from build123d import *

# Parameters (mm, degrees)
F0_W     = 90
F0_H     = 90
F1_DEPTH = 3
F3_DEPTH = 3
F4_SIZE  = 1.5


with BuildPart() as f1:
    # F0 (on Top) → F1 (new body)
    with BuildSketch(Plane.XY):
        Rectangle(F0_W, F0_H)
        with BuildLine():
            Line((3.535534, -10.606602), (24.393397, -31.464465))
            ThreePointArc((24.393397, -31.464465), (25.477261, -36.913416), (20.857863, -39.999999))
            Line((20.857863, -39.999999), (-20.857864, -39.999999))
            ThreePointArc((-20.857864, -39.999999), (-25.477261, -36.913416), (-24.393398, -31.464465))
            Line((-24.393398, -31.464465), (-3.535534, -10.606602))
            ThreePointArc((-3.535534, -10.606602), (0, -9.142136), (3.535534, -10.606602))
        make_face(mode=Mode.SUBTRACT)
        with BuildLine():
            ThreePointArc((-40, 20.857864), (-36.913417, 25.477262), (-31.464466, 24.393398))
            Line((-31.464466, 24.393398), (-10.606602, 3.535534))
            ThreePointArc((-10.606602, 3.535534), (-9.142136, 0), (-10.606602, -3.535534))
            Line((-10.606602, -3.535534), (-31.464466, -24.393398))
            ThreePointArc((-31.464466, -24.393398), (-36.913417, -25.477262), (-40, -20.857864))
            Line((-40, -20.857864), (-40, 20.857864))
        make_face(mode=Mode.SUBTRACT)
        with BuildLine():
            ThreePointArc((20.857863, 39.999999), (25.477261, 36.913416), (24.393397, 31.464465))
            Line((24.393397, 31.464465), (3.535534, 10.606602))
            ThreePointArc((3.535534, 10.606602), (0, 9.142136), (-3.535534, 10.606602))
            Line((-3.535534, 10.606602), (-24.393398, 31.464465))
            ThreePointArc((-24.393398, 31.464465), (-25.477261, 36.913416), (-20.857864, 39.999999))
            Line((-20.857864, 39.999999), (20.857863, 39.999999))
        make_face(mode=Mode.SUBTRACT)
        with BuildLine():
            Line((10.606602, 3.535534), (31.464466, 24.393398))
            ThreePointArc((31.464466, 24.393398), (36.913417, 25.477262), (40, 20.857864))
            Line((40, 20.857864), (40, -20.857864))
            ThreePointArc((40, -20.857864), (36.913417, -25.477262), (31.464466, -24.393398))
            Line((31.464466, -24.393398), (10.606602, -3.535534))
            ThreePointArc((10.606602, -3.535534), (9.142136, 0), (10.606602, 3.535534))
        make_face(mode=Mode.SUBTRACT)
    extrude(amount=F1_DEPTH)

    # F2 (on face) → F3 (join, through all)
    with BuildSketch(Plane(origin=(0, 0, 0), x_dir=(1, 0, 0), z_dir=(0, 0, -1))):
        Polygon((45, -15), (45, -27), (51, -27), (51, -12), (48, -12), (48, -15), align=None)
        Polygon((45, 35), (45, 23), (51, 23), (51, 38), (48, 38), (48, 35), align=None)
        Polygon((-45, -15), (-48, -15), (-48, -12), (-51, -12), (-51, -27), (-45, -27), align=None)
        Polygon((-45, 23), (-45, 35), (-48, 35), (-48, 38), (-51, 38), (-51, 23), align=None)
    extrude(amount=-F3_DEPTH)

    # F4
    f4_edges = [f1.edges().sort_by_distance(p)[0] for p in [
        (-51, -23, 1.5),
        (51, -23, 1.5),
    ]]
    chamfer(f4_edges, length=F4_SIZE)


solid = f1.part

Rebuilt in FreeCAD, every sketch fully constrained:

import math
import FreeCAD as App
import Part
import Sketcher
Q = App.Units.Quantity


def edges_at(feature, points):
    """Names of the edges that pass closest to the given points."""
    edges = feature.Shape.Edges
    near = lambda p: min(range(len(edges)), key=lambda i: edges[i].distToShape(Part.Vertex(*p))[0])
    return sorted({f"Edge{near(p) + 1}" for p in points})

doc = App.newDocument("Part")
params = doc.addObject("Spreadsheet::Sheet", "Params")
for row, (alias, value) in enumerate([
    ("sketch1_radius", "5 mm"),
    ("sketch1_width", "90 mm"),
    ("pad1_length", "3 mm"),
    ("sketch2_width", "6 mm"),
    ("sketch2_height", "12 mm"),
    ("chamfer_size", "1.5 mm"),
], start=1):
    params.set(f"A{row}", alias)
    params.set(f"B{row}", "=" + value)
    params.setAlias(f"B{row}", alias)

body = doc.addObject("PartDesign::Body", "Body")

# Sketch on XY plane
sketch1 = body.newObject("Sketcher::SketchObject", "Sketch")
sketch1.AttachmentSupport = (doc.getObject("XY_Plane"), [""])
sketch1.MapMode = "FlatFace"
sketch1.addGeometry(Part.LineSegment(App.Vector(-45, 45, 0), App.Vector(-45, -45, 0)), False)
sketch1.addGeometry(Part.LineSegment(App.Vector(-45, -45, 0), App.Vector(45, -45, 0)), False)
sketch1.addGeometry(Part.LineSegment(App.Vector(45, -45, 0), App.Vector(45, 45, 0)), False)
sketch1.addGeometry(Part.LineSegment(App.Vector(45, 45, 0), App.Vector(-45, 45, 0)), False)
sketch1.addGeometry(Part.ArcOfCircle(Part.Circle(App.Vector(0, -14.1, 0), App.Vector(0, 0, 1), 5), math.radians(45), math.radians(135)), False)
sketch1.addGeometry(Part.LineSegment(App.Vector(3.5, -10.6, 0), App.Vector(24.4, -31.5, 0)), False)
sketch1.addGeometry(Part.ArcOfCircle(Part.Circle(App.Vector(20.9, -35, 0), App.Vector(0, 0, 1), 5), math.radians(-90), math.radians(45)), False)
sketch1.addGeometry(Part.LineSegment(App.Vector(20.9, -40, 0), App.Vector(-20.9, -40, 0)), False)
sketch1.addGeometry(Part.ArcOfCircle(Part.Circle(App.Vector(-20.9, -35, 0), App.Vector(0, 0, 1), 5), math.radians(135), math.radians(270)), False)
sketch1.addGeometry(Part.LineSegment(App.Vector(-24.4, -31.5, 0), App.Vector(-3.5, -10.6, 0)), False)
sketch1.addGeometry(Part.LineSegment(App.Vector(-40, -20.9, 0), App.Vector(-40, 20.9, 0)), False)
sketch1.addGeometry(Part.ArcOfCircle(Part.Circle(App.Vector(-35, 20.9, 0), App.Vector(0, 0, 1), 5), math.radians(45), math.radians(180)), False)
sketch1.addGeometry(Part.LineSegment(App.Vector(-31.5, 24.4, 0), App.Vector(-10.6, 3.5, 0)), False)
sketch1.addGeometry(Part.ArcOfCircle(Part.Circle(App.Vector(-14.1, 0, 0), App.Vector(0, 0, 1), 5), math.radians(-45), math.radians(45)), False)
sketch1.addGeometry(Part.LineSegment(App.Vector(-10.6, -3.5, 0), App.Vector(-31.5, -24.4, 0)), False)
sketch1.addGeometry(Part.ArcOfCircle(Part.Circle(App.Vector(-35, -20.9, 0), App.Vector(0, 0, 1), 5), math.radians(180), math.radians(315)), False)
sketch1.addGeometry(Part.LineSegment(App.Vector(-20.9, 40, 0), App.Vector(20.9, 40, 0)), False)
sketch1.addGeometry(Part.ArcOfCircle(Part.Circle(App.Vector(20.9, 35, 0), App.Vector(0, 0, 1), 5), math.radians(-45), math.radians(90)), False)
sketch1.addGeometry(Part.LineSegment(App.Vector(24.4, 31.5, 0), App.Vector(3.5, 10.6, 0)), False)
sketch1.addGeometry(Part.ArcOfCircle(Part.Circle(App.Vector(0, 14.1, 0), App.Vector(0, 0, 1), 5), math.radians(-135), math.radians(-45)), False)
sketch1.addGeometry(Part.LineSegment(App.Vector(-3.5, 10.6, 0), App.Vector(-24.4, 31.5, 0)), False)
sketch1.addGeometry(Part.ArcOfCircle(Part.Circle(App.Vector(-20.9, 35, 0), App.Vector(0, 0, 1), 5), math.radians(90), math.radians(225)), False)
sketch1.addGeometry(Part.ArcOfCircle(Part.Circle(App.Vector(14.1, 0, 0), App.Vector(0, 0, 1), 5), math.radians(135), math.radians(225)), False)
sketch1.addGeometry(Part.LineSegment(App.Vector(10.6, 3.5, 0), App.Vector(31.5, 24.4, 0)), False)
sketch1.addGeometry(Part.ArcOfCircle(Part.Circle(App.Vector(35, 20.9, 0), App.Vector(0, 0, 1), 5), math.radians(0), math.radians(135)), False)
sketch1.addGeometry(Part.LineSegment(App.Vector(40, 20.9, 0), App.Vector(40, -20.9, 0)), False)
sketch1.addGeometry(Part.ArcOfCircle(Part.Circle(App.Vector(35, -20.9, 0), App.Vector(0, 0, 1), 5), math.radians(-135), math.radians(0)), False)
sketch1.addGeometry(Part.LineSegment(App.Vector(31.5, -24.4, 0), App.Vector(10.6, -3.5, 0)), False)
sketch1.addConstraint(Sketcher.Constraint("Coincident", 0, 2, 1, 1))
sketch1.addConstraint(Sketcher.Constraint("Coincident", 1, 2, 2, 1))
sketch1.addConstraint(Sketcher.Constraint("Coincident", 2, 2, 3, 1))
sketch1.addConstraint(Sketcher.Constraint("Coincident", 3, 2, 0, 1))
sketch1.addConstraint(Sketcher.Constraint("Tangent", 4, 1, 5, 1))
sketch1.addConstraint(Sketcher.Constraint("Tangent", 5, 2, 6, 2))
sketch1.addConstraint(Sketcher.Constraint("Tangent", 6, 1, 7, 1))
sketch1.addConstraint(Sketcher.Constraint("Tangent", 7, 2, 8, 2))
sketch1.addConstraint(Sketcher.Constraint("Tangent", 8, 1, 9, 1))
sketch1.addConstraint(Sketcher.Constraint("Tangent", 9, 2, 4, 2))
sketch1.addConstraint(Sketcher.Constraint("Tangent", 10, 2, 11, 2))
sketch1.addConstraint(Sketcher.Constraint("Tangent", 11, 1, 12, 1))
sketch1.addConstraint(Sketcher.Constraint("Tangent", 12, 2, 13, 2))
sketch1.addConstraint(Sketcher.Constraint("Tangent", 13, 1, 14, 1))
sketch1.addConstraint(Sketcher.Constraint("Tangent", 14, 2, 15, 2))
sketch1.addConstraint(Sketcher.Constraint("Tangent", 15, 1, 10, 1))
sketch1.addConstraint(Sketcher.Constraint("Tangent", 16, 2, 17, 2))
sketch1.addConstraint(Sketcher.Constraint("Tangent", 17, 1, 18, 1))
sketch1.addConstraint(Sketcher.Constraint("Tangent", 18, 2, 19, 2))
sketch1.addConstraint(Sketcher.Constraint("Tangent", 19, 1, 20, 1))
sketch1.addConstraint(Sketcher.Constraint("Tangent", 20, 2, 21, 2))
sketch1.addConstraint(Sketcher.Constraint("Tangent", 21, 1, 16, 1))
sketch1.addConstraint(Sketcher.Constraint("Tangent", 22, 1, 23, 1))
sketch1.addConstraint(Sketcher.Constraint("Tangent", 23, 2, 24, 2))
sketch1.addConstraint(Sketcher.Constraint("Tangent", 24, 1, 25, 1))
sketch1.addConstraint(Sketcher.Constraint("Tangent", 25, 2, 26, 2))
sketch1.addConstraint(Sketcher.Constraint("Tangent", 26, 1, 27, 1))
sketch1.addConstraint(Sketcher.Constraint("Tangent", 27, 2, 22, 2))
sketch1.addConstraint(Sketcher.Constraint("Vertical", 0))
sketch1.addConstraint(Sketcher.Constraint("Horizontal", 1))
sketch1.addConstraint(Sketcher.Constraint("Vertical", 2))
sketch1.addConstraint(Sketcher.Constraint("Horizontal", 3))
sketch1.addConstraint(Sketcher.Constraint("Horizontal", 7))
sketch1.addConstraint(Sketcher.Constraint("Vertical", 10))
sketch1.addConstraint(Sketcher.Constraint("Horizontal", 16))
sketch1.addConstraint(Sketcher.Constraint("Vertical", 25))
sketch1.addConstraint(Sketcher.Constraint("Equal", 4, 6))
sketch1.addConstraint(Sketcher.Constraint("Equal", 6, 8))
sketch1.addConstraint(Sketcher.Constraint("Equal", 8, 11))
sketch1.addConstraint(Sketcher.Constraint("Equal", 11, 13))
sketch1.addConstraint(Sketcher.Constraint("Equal", 13, 15))
sketch1.addConstraint(Sketcher.Constraint("Equal", 15, 17))
sketch1.addConstraint(Sketcher.Constraint("Equal", 17, 19))
sketch1.addConstraint(Sketcher.Constraint("Equal", 19, 21))
sketch1.addConstraint(Sketcher.Constraint("Equal", 21, 22))
sketch1.addConstraint(Sketcher.Constraint("Equal", 22, 24))
sketch1.addConstraint(Sketcher.Constraint("Equal", 24, 26))
sketch1.addConstraint(Sketcher.Constraint("Symmetric", 8, 3, 17, 3, -1, 1))
sketch1.addConstraint(Sketcher.Constraint("Symmetric", 4, 3, 19, 3, -1, 1))
sketch1.addConstraint(Sketcher.Constraint("Symmetric", 13, 3, 22, 3, -1, 1))
sketch1.addConstraint(Sketcher.Constraint("Symmetric", 15, 3, 24, 3, -1, 1))
sketch1.addConstraint(Sketcher.Constraint("Symmetric", 0, 2, 2, 2, -1, 1))
sketch1.addConstraint(Sketcher.Constraint("Symmetric", 5, 2, 8, 1, -2))
sketch1.addConstraint(Sketcher.Constraint("Symmetric", 12, 2, 22, 1, -2))
sketch1.addConstraint(Sketcher.Constraint("Perpendicular", 5, 9))
sketch1.addConstraint(Sketcher.Constraint("Perpendicular", 9, 12))
sketch1.addConstraint(Sketcher.Constraint("Perpendicular", 18, 20))
sketch1.addConstraint(Sketcher.Constraint("Perpendicular", 23, 27))
sketch1.addConstraint(Sketcher.Constraint("Equal", 3, 0))
sketch1.addConstraint(Sketcher.Constraint("Equal", 16, 10))
sketch1.addConstraint(Sketcher.Constraint("Radius", 4, Q("5 mm")))
sketch1.addConstraint(Sketcher.Constraint("DistanceX", 1, 1, 1, 2, Q("90 mm")))
sketch1.addConstraint(Sketcher.Constraint("DistanceY", 6, 3, -1, 1, Q("34.999999 mm")))
sketch1.addConstraint(Sketcher.Constraint("DistanceX", 11, 3, -1, 1, Q("35 mm")))
sketch1.addConstraint(Sketcher.Constraint("DistanceX", 8, 1, -1, 1, Q("24.393398 mm")))
sketch1.setExpression("Constraints[60]", "Params.sketch1_radius")
sketch1.setExpression("Constraints[61]", "Params.sketch1_width")
pad1 = body.newObject("PartDesign::Pad", "Pad")
pad1.Profile = sketch1
pad1.setExpression("Length", "Params.pad1_length")

# Sketch on XY plane
sketch2 = body.newObject("Sketcher::SketchObject", "Sketch001")
sketch2.AttachmentSupport = (doc.getObject("XY_Plane"), [""])
sketch2.MapMode = "FlatFace"
sketch2.addGeometry(Part.LineSegment(App.Vector(45, 15, 0), App.Vector(45, 27, 0)), False)
sketch2.addGeometry(Part.LineSegment(App.Vector(45, 27, 0), App.Vector(51, 27, 0)), False)
sketch2.addGeometry(Part.LineSegment(App.Vector(51, 27, 0), App.Vector(51, 12, 0)), False)
sketch2.addGeometry(Part.LineSegment(App.Vector(51, 12, 0), App.Vector(48, 12, 0)), False)
sketch2.addGeometry(Part.LineSegment(App.Vector(48, 12, 0), App.Vector(48, 15, 0)), False)
sketch2.addGeometry(Part.LineSegment(App.Vector(48, 15, 0), App.Vector(45, 15, 0)), False)
sketch2.addGeometry(Part.LineSegment(App.Vector(45, -35, 0), App.Vector(45, -23, 0)), False)
sketch2.addGeometry(Part.LineSegment(App.Vector(45, -23, 0), App.Vector(51, -23, 0)), False)
sketch2.addGeometry(Part.LineSegment(App.Vector(51, -23, 0), App.Vector(51, -38, 0)), False)
sketch2.addGeometry(Part.LineSegment(App.Vector(51, -38, 0), App.Vector(48, -38, 0)), False)
sketch2.addGeometry(Part.LineSegment(App.Vector(48, -38, 0), App.Vector(48, -35, 0)), False)
sketch2.addGeometry(Part.LineSegment(App.Vector(48, -35, 0), App.Vector(45, -35, 0)), False)
sketch2.addGeometry(Part.LineSegment(App.Vector(-45, 15, 0), App.Vector(-48, 15, 0)), False)
sketch2.addGeometry(Part.LineSegment(App.Vector(-48, 15, 0), App.Vector(-48, 12, 0)), False)
sketch2.addGeometry(Part.LineSegment(App.Vector(-48, 12, 0), App.Vector(-51, 12, 0)), False)
sketch2.addGeometry(Part.LineSegment(App.Vector(-51, 12, 0), App.Vector(-51, 27, 0)), False)
sketch2.addGeometry(Part.LineSegment(App.Vector(-51, 27, 0), App.Vector(-45, 27, 0)), False)
sketch2.addGeometry(Part.LineSegment(App.Vector(-45, 27, 0), App.Vector(-45, 15, 0)), False)
sketch2.addGeometry(Part.LineSegment(App.Vector(-45, -23, 0), App.Vector(-45, -35, 0)), False)
sketch2.addGeometry(Part.LineSegment(App.Vector(-45, -35, 0), App.Vector(-48, -35, 0)), False)
sketch2.addGeometry(Part.LineSegment(App.Vector(-48, -35, 0), App.Vector(-48, -38, 0)), False)
sketch2.addGeometry(Part.LineSegment(App.Vector(-48, -38, 0), App.Vector(-51, -38, 0)), False)
sketch2.addGeometry(Part.LineSegment(App.Vector(-51, -38, 0), App.Vector(-51, -23, 0)), False)
sketch2.addGeometry(Part.LineSegment(App.Vector(-51, -23, 0), App.Vector(-45, -23, 0)), False)
sketch2.addConstraint(Sketcher.Constraint("Coincident", 0, 2, 1, 1))
sketch2.addConstraint(Sketcher.Constraint("Coincident", 1, 2, 2, 1))
sketch2.addConstraint(Sketcher.Constraint("Coincident", 2, 2, 3, 1))
sketch2.addConstraint(Sketcher.Constraint("Coincident", 3, 2, 4, 1))
sketch2.addConstraint(Sketcher.Constraint("Coincident", 4, 2, 5, 1))
sketch2.addConstraint(Sketcher.Constraint("Coincident", 5, 2, 0, 1))
sketch2.addConstraint(Sketcher.Constraint("Coincident", 6, 2, 7, 1))
sketch2.addConstraint(Sketcher.Constraint("Coincident", 7, 2, 8, 1))
sketch2.addConstraint(Sketcher.Constraint("Coincident", 8, 2, 9, 1))
sketch2.addConstraint(Sketcher.Constraint("Coincident", 9, 2, 10, 1))
sketch2.addConstraint(Sketcher.Constraint("Coincident", 10, 2, 11, 1))
sketch2.addConstraint(Sketcher.Constraint("Coincident", 11, 2, 6, 1))
sketch2.addConstraint(Sketcher.Constraint("Coincident", 12, 2, 13, 1))
sketch2.addConstraint(Sketcher.Constraint("Coincident", 13, 2, 14, 1))
sketch2.addConstraint(Sketcher.Constraint("Coincident", 14, 2, 15, 1))
sketch2.addConstraint(Sketcher.Constraint("Coincident", 15, 2, 16, 1))
sketch2.addConstraint(Sketcher.Constraint("Coincident", 16, 2, 17, 1))
sketch2.addConstraint(Sketcher.Constraint("Coincident", 17, 2, 12, 1))
sketch2.addConstraint(Sketcher.Constraint("Coincident", 18, 2, 19, 1))
sketch2.addConstraint(Sketcher.Constraint("Coincident", 19, 2, 20, 1))
sketch2.addConstraint(Sketcher.Constraint("Coincident", 20, 2, 21, 1))
sketch2.addConstraint(Sketcher.Constraint("Coincident", 21, 2, 22, 1))
sketch2.addConstraint(Sketcher.Constraint("Coincident", 22, 2, 23, 1))
sketch2.addConstraint(Sketcher.Constraint("Coincident", 23, 2, 18, 1))
sketch2.addConstraint(Sketcher.Constraint("Vertical", 0))
sketch2.addConstraint(Sketcher.Constraint("Horizontal", 1))
sketch2.addConstraint(Sketcher.Constraint("Vertical", 2))
sketch2.addConstraint(Sketcher.Constraint("Horizontal", 3))
sketch2.addConstraint(Sketcher.Constraint("Vertical", 4))
sketch2.addConstraint(Sketcher.Constraint("Horizontal", 5))
sketch2.addConstraint(Sketcher.Constraint("Vertical", 6))
sketch2.addConstraint(Sketcher.Constraint("Horizontal", 7))
sketch2.addConstraint(Sketcher.Constraint("Vertical", 8))
sketch2.addConstraint(Sketcher.Constraint("Horizontal", 9))
sketch2.addConstraint(Sketcher.Constraint("Vertical", 10))
sketch2.addConstraint(Sketcher.Constraint("Horizontal", 11))
sketch2.addConstraint(Sketcher.Constraint("Horizontal", 12))
sketch2.addConstraint(Sketcher.Constraint("Vertical", 13))
sketch2.addConstraint(Sketcher.Constraint("Horizontal", 14))
sketch2.addConstraint(Sketcher.Constraint("Vertical", 15))
sketch2.addConstraint(Sketcher.Constraint("Horizontal", 16))
sketch2.addConstraint(Sketcher.Constraint("Vertical", 17))
sketch2.addConstraint(Sketcher.Constraint("Vertical", 18))
sketch2.addConstraint(Sketcher.Constraint("Horizontal", 19))
sketch2.addConstraint(Sketcher.Constraint("Vertical", 20))
sketch2.addConstraint(Sketcher.Constraint("Horizontal", 21))
sketch2.addConstraint(Sketcher.Constraint("Vertical", 22))
sketch2.addConstraint(Sketcher.Constraint("Horizontal", 23))
sketch2.addConstraint(Sketcher.Constraint("Symmetric", 4, 2, 12, 2, -2))
sketch2.addConstraint(Sketcher.Constraint("Symmetric", 2, 2, 14, 2, -2))
sketch2.addConstraint(Sketcher.Constraint("Symmetric", 0, 2, 16, 2, -2))
sketch2.addConstraint(Sketcher.Constraint("Symmetric", 11, 2, 18, 2, -2))
sketch2.addConstraint(Sketcher.Constraint("Symmetric", 9, 2, 20, 2, -2))
sketch2.addConstraint(Sketcher.Constraint("Symmetric", 7, 2, 22, 2, -2))
sketch2.addConstraint(Sketcher.Constraint("Vertical", 5, 2, 6, 2))
sketch2.addConstraint(Sketcher.Constraint("Vertical", 2, 2, 7, 2))
sketch2.addConstraint(Sketcher.Constraint("Vertical", 4, 2, 9, 2))
sketch2.addConstraint(Sketcher.Constraint("Equal", 3, 5))
sketch2.addConstraint(Sketcher.Constraint("Equal", 21, 4))
sketch2.addConstraint(Sketcher.Constraint("Equal", 0, 6))
sketch2.addConstraint(Sketcher.Constraint("Equal", 2, 8))
sketch2.addConstraint(Sketcher.Constraint("DistanceX", 1, 1, 1, 2, Q("6 mm")))
sketch2.addConstraint(Sketcher.Constraint("DistanceY", 0, 1, 0, 2, Q("12 mm")))
sketch2.addConstraint(Sketcher.Constraint("DistanceX", -1, 1, 0, 2, Q("45 mm")))
sketch2.addConstraint(Sketcher.Constraint("DistanceY", -1, 1, 0, 2, Q("27 mm")))
sketch2.addConstraint(Sketcher.Constraint("DistanceY", 6, 2, -1, 1, Q("23 mm")))
sketch2.setExpression("Constraints[61]", "Params.sketch2_width")
sketch2.setExpression("Constraints[62]", "Params.sketch2_height")
pad2 = body.newObject("PartDesign::Pad", "Pad001")
pad2.Profile = sketch2
pad2.Type = "UpToLast"
doc.recompute()

chamfer = body.newObject("PartDesign::Chamfer", "Chamfer")
chamfer.Base = (pad2, edges_at(pad2, [(-51, -23, 1.5), (51, -23, 1.5)]))
chamfer.setExpression("Size", "Params.chamfer_size")

doc.recompute()
